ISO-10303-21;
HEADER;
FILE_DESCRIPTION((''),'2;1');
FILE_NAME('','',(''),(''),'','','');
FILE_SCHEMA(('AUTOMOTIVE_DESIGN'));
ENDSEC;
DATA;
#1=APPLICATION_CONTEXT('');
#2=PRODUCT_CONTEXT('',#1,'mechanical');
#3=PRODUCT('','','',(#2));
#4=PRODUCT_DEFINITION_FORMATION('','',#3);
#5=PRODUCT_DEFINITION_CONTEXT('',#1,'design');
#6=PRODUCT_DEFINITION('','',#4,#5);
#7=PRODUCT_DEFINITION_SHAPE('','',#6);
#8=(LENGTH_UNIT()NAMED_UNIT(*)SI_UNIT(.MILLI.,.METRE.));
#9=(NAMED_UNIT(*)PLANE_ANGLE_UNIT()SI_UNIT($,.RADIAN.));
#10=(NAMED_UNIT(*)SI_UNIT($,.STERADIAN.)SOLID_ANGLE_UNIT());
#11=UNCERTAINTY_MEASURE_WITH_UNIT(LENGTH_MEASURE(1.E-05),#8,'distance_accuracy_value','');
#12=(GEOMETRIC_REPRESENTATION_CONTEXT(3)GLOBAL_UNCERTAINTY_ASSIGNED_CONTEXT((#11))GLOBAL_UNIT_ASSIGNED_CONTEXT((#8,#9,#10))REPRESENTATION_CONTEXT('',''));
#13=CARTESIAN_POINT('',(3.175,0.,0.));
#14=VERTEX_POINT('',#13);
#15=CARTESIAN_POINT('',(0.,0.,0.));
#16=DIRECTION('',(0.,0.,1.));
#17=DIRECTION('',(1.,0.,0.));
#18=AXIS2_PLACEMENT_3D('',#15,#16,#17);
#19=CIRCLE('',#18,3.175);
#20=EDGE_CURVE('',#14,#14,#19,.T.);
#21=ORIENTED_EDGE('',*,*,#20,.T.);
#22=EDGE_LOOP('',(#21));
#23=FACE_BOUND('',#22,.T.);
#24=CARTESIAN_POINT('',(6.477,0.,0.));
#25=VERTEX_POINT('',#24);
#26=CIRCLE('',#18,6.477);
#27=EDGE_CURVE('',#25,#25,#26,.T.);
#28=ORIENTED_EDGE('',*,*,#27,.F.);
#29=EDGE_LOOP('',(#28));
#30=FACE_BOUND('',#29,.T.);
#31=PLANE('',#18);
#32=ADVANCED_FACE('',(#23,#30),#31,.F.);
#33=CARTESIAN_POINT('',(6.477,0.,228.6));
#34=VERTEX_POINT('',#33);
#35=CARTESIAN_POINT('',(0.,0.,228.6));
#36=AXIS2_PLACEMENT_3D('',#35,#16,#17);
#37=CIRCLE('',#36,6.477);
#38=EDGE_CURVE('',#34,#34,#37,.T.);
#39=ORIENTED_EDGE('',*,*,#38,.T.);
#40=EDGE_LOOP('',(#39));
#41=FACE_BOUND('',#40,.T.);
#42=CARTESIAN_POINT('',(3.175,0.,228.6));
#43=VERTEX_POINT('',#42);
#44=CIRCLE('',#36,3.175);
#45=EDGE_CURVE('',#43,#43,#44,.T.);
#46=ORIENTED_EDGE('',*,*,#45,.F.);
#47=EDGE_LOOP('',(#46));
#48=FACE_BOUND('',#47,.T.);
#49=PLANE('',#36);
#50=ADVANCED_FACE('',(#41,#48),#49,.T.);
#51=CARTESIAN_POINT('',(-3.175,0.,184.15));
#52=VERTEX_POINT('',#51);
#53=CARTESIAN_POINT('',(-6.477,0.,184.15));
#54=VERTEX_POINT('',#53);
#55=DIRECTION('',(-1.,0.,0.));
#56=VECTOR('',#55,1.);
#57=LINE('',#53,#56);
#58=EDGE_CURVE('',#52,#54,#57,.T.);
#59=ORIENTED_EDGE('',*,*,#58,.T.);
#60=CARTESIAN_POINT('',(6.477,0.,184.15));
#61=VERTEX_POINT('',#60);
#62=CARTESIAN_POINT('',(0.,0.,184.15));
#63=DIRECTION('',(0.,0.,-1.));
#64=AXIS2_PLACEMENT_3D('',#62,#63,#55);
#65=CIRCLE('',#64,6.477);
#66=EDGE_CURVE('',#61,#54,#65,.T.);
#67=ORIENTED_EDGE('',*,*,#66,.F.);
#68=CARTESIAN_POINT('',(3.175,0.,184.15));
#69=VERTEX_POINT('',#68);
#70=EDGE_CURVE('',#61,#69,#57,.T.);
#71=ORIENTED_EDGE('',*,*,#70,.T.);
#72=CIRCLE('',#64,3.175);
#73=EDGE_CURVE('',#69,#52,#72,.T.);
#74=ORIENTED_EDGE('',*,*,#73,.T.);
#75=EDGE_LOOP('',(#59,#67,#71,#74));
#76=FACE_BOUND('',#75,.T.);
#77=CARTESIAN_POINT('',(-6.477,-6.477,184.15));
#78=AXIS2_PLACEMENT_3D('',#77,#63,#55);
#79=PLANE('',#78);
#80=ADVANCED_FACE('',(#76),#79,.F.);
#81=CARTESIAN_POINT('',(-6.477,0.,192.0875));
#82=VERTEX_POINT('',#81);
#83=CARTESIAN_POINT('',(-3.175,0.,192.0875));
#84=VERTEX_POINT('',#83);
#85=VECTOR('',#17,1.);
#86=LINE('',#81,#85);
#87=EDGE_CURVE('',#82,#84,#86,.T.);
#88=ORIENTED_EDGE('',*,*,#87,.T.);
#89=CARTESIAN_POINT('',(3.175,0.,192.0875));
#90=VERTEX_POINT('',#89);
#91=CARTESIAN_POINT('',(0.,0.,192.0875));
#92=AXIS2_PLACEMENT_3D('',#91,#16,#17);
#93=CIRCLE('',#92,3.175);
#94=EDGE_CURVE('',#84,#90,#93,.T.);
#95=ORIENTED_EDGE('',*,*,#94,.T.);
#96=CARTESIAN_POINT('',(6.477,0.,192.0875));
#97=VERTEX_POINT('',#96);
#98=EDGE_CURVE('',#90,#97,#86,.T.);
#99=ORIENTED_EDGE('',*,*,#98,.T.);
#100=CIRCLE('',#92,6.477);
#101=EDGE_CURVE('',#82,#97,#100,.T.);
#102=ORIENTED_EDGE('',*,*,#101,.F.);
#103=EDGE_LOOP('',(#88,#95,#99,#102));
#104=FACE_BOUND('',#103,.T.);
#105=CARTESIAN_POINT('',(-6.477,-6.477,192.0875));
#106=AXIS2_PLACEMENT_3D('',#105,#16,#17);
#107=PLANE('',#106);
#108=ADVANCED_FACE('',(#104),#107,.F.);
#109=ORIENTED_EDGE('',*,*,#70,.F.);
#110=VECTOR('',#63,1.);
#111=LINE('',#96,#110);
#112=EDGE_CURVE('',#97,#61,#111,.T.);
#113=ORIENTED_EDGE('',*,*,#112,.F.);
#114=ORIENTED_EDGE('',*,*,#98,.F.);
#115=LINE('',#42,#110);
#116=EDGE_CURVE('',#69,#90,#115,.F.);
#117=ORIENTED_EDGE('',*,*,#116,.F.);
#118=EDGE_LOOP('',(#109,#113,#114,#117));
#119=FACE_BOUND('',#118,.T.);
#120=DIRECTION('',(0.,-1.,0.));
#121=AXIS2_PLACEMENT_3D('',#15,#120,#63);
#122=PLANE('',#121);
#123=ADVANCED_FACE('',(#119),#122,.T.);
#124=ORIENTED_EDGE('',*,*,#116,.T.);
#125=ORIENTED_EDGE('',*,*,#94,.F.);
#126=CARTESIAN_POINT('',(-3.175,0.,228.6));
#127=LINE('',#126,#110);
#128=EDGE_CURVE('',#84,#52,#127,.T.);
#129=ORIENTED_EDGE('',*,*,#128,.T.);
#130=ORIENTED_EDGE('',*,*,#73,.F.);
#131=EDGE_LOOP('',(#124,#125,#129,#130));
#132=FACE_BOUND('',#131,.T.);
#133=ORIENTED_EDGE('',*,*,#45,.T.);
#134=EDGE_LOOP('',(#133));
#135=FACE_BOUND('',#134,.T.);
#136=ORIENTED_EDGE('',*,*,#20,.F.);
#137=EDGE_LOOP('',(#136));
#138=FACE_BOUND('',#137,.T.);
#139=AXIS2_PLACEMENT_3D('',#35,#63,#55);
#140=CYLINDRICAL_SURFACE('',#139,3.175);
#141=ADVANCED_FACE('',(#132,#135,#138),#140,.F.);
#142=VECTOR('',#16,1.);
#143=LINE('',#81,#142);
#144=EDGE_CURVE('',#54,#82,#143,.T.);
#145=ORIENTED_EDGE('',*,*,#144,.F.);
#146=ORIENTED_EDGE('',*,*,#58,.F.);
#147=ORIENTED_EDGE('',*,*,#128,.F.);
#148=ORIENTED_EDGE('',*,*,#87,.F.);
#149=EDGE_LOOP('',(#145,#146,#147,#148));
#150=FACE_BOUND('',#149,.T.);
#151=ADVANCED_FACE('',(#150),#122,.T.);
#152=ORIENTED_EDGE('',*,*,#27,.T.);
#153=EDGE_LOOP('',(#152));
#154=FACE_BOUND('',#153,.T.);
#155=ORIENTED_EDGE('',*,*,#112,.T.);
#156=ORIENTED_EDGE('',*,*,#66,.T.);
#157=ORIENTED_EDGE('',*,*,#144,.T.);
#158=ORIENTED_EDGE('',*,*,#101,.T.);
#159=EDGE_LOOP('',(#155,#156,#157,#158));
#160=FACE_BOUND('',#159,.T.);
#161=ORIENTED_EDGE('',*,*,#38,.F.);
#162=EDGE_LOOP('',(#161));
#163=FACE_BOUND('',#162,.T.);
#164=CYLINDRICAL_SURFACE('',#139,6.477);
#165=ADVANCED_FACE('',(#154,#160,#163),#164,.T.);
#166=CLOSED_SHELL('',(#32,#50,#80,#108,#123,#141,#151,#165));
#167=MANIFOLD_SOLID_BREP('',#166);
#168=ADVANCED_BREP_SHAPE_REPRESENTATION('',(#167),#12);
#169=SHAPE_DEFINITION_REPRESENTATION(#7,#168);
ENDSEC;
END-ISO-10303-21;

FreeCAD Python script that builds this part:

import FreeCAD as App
import Part
import Sketcher
Q = App.Units.Quantity

doc = App.newDocument("Part")
body = doc.addObject("PartDesign::Body", "Body")

# Sketch on XY plane
sketch1 = body.newObject("Sketcher::SketchObject", "Sketch")
sketch1.AttachmentSupport = (doc.getObject("XY_Plane"), [""])
sketch1.MapMode = "FlatFace"
sketch1.addGeometry(Part.Circle(App.Vector(0, 0, 0), App.Vector(0, 0, 1), 6.477), False)
sketch1.addGeometry(Part.Circle(App.Vector(0, 0, 0), App.Vector(0, 0, 1), 3.175), False)
sketch1.addConstraint(Sketcher.Constraint("Coincident", 0, 3, -1, 1))
sketch1.addConstraint(Sketcher.Constraint("Coincident", 1, 3, -1, 1))
sketch1.addConstraint(Sketcher.Constraint("Diameter", 0, Q("0.51 in")))
sketch1.addConstraint(Sketcher.Constraint("Diameter", 1, Q("0.25 in")))
pad1 = body.newObject("PartDesign::Pad", "Pad")
pad1.Profile = sketch1
pad1.Length = Q("9 in")

# Sketch on XZ plane
sketch2 = body.newObject("Sketcher::SketchObject", "Sketch001")
sketch2.AttachmentSupport = (doc.getObject("XZ_Plane"), [""])
sketch2.MapMode = "FlatFace"
sketch2.addGeometry(Part.LineSegment(App.Vector(-6.477, 184.15, 0), App.Vector(-6.477, 192.0875, 0)), False)
sketch2.addGeometry(Part.LineSegment(App.Vector(-6.477, 192.0875, 0), App.Vector(6.477, 192.0875, 0)), False)
sketch2.addGeometry(Part.LineSegment(App.Vector(6.477, 192.0875, 0), App.Vector(6.477, 184.15, 0)), False)
sketch2.addGeometry(Part.LineSegment(App.Vector(6.477, 184.15, 0), App.Vector(-6.477, 184.15, 0)), False)
sketch2.addConstraint(Sketcher.Constraint("Coincident", 0, 2, 1, 1))
sketch2.addConstraint(Sketcher.Constraint("Coincident", 1, 2, 2, 1))
sketch2.addConstraint(Sketcher.Constraint("Coincident", 2, 2, 3, 1))
sketch2.addConstraint(Sketcher.Constraint("Coincident", 3, 2, 0, 1))
sketch2.addConstraint(Sketcher.Constraint("Vertical", 0))
sketch2.addConstraint(Sketcher.Constraint("Horizontal", 1))
sketch2.addConstraint(Sketcher.Constraint("Vertical", 2))
sketch2.addConstraint(Sketcher.Constraint("Horizontal", 3))
sketch2.addConstraint(Sketcher.Constraint("DistanceX", 1, 1, 1, 2, Q("0.51 in")))
sketch2.addConstraint(Sketcher.Constraint("DistanceY", 0, 1, 0, 2, Q("0.3125 in")))
sketch2.addConstraint(Sketcher.Constraint("DistanceY", -1, 1, 2, 2, Q("7.25 in")))
sketch2.addConstraint(Sketcher.Constraint("DistanceX", 0, 2, -1, 1, Q("0.255 in")))
pocket1 = body.newObject("PartDesign::Pocket", "Pocket")
pocket1.Profile = sketch2
pocket1.Type = "ThroughAll"
pocket1.Reversed = True

doc.recompute()
